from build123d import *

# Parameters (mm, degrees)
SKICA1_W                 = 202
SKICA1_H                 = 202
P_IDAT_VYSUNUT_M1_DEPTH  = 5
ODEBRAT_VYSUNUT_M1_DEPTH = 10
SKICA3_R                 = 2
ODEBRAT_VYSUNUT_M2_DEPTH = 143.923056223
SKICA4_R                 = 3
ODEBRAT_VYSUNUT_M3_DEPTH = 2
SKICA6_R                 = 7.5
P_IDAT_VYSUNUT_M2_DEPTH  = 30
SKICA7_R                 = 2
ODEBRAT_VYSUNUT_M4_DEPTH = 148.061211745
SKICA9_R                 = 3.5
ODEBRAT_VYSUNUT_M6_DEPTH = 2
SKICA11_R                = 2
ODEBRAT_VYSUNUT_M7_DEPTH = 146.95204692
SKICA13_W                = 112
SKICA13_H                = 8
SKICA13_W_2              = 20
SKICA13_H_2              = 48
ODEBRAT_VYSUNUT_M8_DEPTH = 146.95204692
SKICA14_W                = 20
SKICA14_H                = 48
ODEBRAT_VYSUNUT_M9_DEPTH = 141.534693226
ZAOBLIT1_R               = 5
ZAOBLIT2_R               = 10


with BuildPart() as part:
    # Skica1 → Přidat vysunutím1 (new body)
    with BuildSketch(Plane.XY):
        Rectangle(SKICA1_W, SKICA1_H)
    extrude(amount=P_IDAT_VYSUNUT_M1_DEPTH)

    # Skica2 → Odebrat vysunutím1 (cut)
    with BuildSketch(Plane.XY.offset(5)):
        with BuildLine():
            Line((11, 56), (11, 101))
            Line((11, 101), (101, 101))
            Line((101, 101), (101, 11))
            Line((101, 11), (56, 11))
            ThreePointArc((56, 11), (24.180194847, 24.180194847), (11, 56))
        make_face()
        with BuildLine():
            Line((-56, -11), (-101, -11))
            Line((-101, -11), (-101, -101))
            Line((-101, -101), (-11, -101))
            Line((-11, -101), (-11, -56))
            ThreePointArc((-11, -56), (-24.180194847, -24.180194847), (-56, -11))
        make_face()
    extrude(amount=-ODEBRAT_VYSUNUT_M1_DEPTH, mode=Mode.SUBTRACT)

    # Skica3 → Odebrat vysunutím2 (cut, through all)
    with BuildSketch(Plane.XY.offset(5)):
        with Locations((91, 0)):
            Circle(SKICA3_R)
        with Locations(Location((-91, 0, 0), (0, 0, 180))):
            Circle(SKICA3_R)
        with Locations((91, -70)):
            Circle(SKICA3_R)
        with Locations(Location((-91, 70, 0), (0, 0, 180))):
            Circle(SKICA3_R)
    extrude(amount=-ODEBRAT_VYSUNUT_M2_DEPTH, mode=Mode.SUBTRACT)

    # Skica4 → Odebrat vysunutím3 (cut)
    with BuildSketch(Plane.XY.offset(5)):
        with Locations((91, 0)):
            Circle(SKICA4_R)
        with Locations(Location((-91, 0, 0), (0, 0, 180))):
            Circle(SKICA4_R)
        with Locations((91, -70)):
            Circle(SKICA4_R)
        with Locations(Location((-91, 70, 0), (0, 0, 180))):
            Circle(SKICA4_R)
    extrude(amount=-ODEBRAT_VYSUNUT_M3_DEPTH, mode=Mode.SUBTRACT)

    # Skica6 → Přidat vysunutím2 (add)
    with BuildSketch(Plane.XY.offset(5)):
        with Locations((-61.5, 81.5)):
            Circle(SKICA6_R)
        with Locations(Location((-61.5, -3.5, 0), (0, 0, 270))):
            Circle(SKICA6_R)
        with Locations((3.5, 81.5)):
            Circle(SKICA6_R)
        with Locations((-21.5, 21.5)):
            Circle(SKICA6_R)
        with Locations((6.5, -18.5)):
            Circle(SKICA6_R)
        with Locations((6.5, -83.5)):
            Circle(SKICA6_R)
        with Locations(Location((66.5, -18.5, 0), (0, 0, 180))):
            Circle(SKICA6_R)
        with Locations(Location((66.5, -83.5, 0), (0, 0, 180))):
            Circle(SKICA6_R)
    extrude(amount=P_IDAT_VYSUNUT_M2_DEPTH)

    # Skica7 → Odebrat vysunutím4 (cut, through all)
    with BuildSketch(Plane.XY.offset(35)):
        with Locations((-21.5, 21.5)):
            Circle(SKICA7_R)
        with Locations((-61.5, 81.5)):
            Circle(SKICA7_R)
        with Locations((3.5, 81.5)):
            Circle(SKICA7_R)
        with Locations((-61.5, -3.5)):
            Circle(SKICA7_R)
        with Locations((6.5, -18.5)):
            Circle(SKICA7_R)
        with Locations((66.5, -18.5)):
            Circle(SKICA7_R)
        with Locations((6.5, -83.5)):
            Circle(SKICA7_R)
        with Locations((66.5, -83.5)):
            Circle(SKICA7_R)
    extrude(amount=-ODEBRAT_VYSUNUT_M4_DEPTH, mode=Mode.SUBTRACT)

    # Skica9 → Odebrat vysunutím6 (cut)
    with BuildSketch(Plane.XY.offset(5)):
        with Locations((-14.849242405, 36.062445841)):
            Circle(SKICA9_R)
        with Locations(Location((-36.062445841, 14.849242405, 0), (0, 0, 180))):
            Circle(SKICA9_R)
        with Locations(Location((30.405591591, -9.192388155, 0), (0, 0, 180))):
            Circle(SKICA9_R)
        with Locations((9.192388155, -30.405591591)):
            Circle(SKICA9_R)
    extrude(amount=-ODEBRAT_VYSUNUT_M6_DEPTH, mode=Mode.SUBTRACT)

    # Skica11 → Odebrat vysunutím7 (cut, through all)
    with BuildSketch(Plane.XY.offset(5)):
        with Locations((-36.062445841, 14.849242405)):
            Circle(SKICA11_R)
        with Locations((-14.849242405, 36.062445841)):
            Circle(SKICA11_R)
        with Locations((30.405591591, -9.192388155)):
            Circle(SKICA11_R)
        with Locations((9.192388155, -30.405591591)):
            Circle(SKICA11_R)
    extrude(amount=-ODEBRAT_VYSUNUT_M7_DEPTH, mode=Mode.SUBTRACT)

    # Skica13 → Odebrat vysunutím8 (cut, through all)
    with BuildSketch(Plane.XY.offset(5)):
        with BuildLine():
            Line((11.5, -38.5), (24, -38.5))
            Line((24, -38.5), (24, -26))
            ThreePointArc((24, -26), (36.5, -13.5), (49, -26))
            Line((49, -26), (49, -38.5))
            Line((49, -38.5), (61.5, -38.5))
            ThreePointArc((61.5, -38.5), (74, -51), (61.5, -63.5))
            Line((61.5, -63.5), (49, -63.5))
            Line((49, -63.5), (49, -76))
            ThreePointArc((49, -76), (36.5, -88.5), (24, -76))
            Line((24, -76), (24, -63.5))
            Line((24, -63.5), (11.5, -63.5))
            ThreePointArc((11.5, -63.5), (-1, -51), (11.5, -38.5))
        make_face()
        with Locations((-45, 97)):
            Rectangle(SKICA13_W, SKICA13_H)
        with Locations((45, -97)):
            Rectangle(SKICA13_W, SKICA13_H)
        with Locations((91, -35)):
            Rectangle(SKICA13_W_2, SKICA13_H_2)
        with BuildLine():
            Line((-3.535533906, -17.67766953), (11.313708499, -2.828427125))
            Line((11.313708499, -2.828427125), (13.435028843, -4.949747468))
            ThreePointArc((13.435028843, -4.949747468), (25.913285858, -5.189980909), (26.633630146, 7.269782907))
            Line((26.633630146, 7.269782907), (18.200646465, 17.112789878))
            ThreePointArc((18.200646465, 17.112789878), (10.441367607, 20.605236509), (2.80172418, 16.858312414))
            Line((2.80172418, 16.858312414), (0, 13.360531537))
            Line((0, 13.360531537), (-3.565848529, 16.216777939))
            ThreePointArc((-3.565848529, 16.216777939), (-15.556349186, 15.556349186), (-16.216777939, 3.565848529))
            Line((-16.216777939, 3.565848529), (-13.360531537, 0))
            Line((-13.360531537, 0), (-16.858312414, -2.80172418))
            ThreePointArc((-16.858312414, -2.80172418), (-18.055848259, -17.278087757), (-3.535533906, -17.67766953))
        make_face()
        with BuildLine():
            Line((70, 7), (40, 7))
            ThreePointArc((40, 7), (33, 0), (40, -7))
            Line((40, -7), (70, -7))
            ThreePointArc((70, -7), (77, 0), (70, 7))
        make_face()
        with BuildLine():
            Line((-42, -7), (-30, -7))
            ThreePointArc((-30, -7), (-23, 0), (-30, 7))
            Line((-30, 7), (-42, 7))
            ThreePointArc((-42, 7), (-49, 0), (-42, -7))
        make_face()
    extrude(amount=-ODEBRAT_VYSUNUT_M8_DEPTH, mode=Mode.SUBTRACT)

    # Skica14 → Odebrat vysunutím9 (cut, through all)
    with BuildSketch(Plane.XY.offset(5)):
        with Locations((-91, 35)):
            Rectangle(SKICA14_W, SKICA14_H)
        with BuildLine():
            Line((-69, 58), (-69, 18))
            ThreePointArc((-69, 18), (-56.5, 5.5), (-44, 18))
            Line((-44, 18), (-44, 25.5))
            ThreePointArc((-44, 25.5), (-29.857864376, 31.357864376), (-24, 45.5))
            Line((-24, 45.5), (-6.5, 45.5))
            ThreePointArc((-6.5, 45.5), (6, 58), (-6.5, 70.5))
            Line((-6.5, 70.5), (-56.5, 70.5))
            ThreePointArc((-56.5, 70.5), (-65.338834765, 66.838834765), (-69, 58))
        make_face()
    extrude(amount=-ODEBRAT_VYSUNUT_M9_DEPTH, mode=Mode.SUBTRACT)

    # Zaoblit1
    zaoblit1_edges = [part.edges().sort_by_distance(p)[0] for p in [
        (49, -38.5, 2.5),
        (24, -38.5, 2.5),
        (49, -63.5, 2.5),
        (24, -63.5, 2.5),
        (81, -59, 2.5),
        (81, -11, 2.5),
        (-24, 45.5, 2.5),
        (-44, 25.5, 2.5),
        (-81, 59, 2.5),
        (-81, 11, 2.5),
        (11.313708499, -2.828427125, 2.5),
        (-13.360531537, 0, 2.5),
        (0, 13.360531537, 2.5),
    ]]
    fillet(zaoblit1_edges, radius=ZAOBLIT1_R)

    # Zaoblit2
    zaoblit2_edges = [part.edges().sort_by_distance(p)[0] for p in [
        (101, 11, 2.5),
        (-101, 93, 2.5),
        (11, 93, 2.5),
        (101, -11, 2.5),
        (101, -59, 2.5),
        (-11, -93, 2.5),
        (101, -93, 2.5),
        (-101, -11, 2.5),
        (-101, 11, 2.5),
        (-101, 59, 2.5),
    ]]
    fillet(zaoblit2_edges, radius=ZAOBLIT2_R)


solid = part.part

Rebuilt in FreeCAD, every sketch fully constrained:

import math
import FreeCAD as App
import Part
import Sketcher
Q = App.Units.Quantity


def edges_at(feature, points):
    """Names of the edges that pass closest to the given points."""
    edges = feature.Shape.Edges
    near = lambda p: min(range(len(edges)), key=lambda i: edges[i].distToShape(Part.Vertex(*p))[0])
    return sorted({f"Edge{near(p) + 1}" for p in points})

doc = App.newDocument("Part")
params = doc.addObject("Spreadsheet::Sheet", "Params")
for row, (alias, value) in enumerate([
    ("sketch1_width", "202 mm"),
    ("pad1_length", "5 mm"),
    ("sketch2_radius", "45 mm"),
    ("sketch2_width", "45 mm"),
    ("pocket1_length", "10 mm"),
    ("sketch3_diameter", "4 mm"),
    ("sketch4_diameter", "6 mm"),
    ("pocket3_length", "2 mm"),
    ("sketch5_diameter", "15 mm"),
    ("pad2_length", "30 mm"),
    ("sketch6_diameter", "4 mm"),
    ("sketch7_diameter", "7 mm"),
    ("pocket5_length", "2 mm"),
    ("sketch8_diameter", "4 mm"),
    ("sketch9_radius", "9 mm"),
    ("sketch9_radius2", "10 mm"),
    ("sketch9_radius3", "7 mm"),
    ("sketch9_radius4", "12.5 mm"),
    ("sketch9_width", "112 mm"),
    ("sketch10_radius", "20 mm"),
    ("sketch10_radius2", "12.5 mm"),
    ("sketch10_width", "20 mm"),
    ("sketch10_width2", "50 mm"),
    ("sketch10_height", "48 mm"),
    ("fillet_radius", "5 mm"),
    ("fillet2_radius", "10 mm"),
], start=1):
    params.set(f"A{row}", alias)
    params.set(f"B{row}", "=" + value)
    params.setAlias(f"B{row}", alias)

body = doc.addObject("PartDesign::Body", "Body")

sketch1 = body.newObject("Sketcher::SketchObject", "Sketch")
sketch1.AttachmentSupport = (doc.getObject("XY_Plane"), [""])
sketch1.MapMode = "FlatFace"
sketch1.addGeometry(Part.LineSegment(App.Vector(-101, 101, 0), App.Vector(-101, -101, 0)), False)
sketch1.addGeometry(Part.LineSegment(App.Vector(-101, -101, 0), App.Vector(101, -101, 0)), False)
sketch1.addGeometry(Part.LineSegment(App.Vector(101, -101, 0), App.Vector(101, 101, 0)), False)
sketch1.addGeometry(Part.LineSegment(App.Vector(101, 101, 0), App.Vector(-101, 101, 0)), False)
sketch1.addConstraint(Sketcher.Constraint("Coincident", 0, 2, 1, 1))
sketch1.addConstraint(Sketcher.Constraint("Coincident", 1, 2, 2, 1))
sketch1.addConstraint(Sketcher.Constraint("Coincident", 2, 2, 3, 1))
sketch1.addConstraint(Sketcher.Constraint("Coincident", 3, 2, 0, 1))
sketch1.addConstraint(Sketcher.Constraint("Vertical", 0))
sketch1.addConstraint(Sketcher.Constraint("Horizontal", 1))
sketch1.addConstraint(Sketcher.Constraint("Vertical", 2))
sketch1.addConstraint(Sketcher.Constraint("Horizontal", 3))
sketch1.addConstraint(Sketcher.Constraint("Symmetric", 0, 2, 2, 2, -1, 1))
sketch1.addConstraint(Sketcher.Constraint("Equal", 3, 0))
sketch1.addConstraint(Sketcher.Constraint("DistanceX", 1, 1, 1, 2, Q("202 mm")))
sketch1.setExpression("Constraints[10]", "Params.sketch1_width")
pad1 = body.newObject("PartDesign::Pad", "Pad")
pad1.Profile = sketch1
pad1.setExpression("Length", "Params.pad1_length")

sketch2 = body.newObject("Sketcher::SketchObject", "Sketch001")
sketch2.AttachmentSupport = (doc.getObject("XY_Plane"), [""])
sketch2.MapMode = "FlatFace"
sketch2.AttachmentOffset = App.Placement(App.Vector(0, 0, 5), App.Rotation())
sketch2.addGeometry(Part.LineSegment(App.Vector(11, 101, 0), App.Vector(11, 56, 0)), False)
sketch2.addGeometry(Part.ArcOfCircle(Part.Circle(App.Vector(56, 56, 0), App.Vector(0, 0, 1), 45), math.radians(-180), math.radians(-90)), False)
sketch2.addGeometry(Part.LineSegment(App.Vector(56, 11, 0), App.Vector(101, 11, 0)), False)
sketch2.addGeometry(Part.LineSegment(App.Vector(101, 11, 0), App.Vector(101, 101, 0)), False)
sketch2.addGeometry(Part.LineSegment(App.Vector(101, 101, 0), App.Vector(11, 101, 0)), False)
sketch2.addGeometry(Part.LineSegment(App.Vector(-56, -11, 0), App.Vector(-101, -11, 0)), False)
sketch2.addGeometry(Part.LineSegment(App.Vector(-101, -11, 0), App.Vector(-101, -101, 0)), False)
sketch2.addGeometry(Part.LineSegment(App.Vector(-101, -101, 0), App.Vector(-11, -101, 0)), False)
sketch2.addGeometry(Part.LineSegment(App.Vector(-11, -101, 0), App.Vector(-11, -56, 0)), False)
sketch2.addGeometry(Part.ArcOfCircle(Part.Circle(App.Vector(-56, -56, 0), App.Vector(0, 0, 1), 45), math.radians(0), math.radians(90)), False)
sketch2.addConstraint(Sketcher.Constraint("Tangent", 0, 2, 1, 1))
sketch2.addConstraint(Sketcher.Constraint("Tangent", 1, 2, 2, 1))
sketch2.addConstraint(Sketcher.Constraint("Coincident", 2, 2, 3, 1))
sketch2.addConstraint(Sketcher.Constraint("Coincident", 3, 2, 4, 1))
sketch2.addConstraint(Sketcher.Constraint("Coincident", 4, 2, 0, 1))
sketch2.addConstraint(Sketcher.Constraint("Coincident", 5, 2, 6, 1))
sketch2.addConstraint(Sketcher.Constraint("Coincident", 6, 2, 7, 1))
sketch2.addConstraint(Sketcher.Constraint("Coincident", 7, 2, 8, 1))
sketch2.addConstraint(Sketcher.Constraint("Tangent", 8, 2, 9, 1))
sketch2.addConstraint(Sketcher.Constraint("Tangent", 9, 2, 5, 1))
sketch2.addConstraint(Sketcher.Constraint("Vertical", 0))
sketch2.addConstraint(Sketcher.Constraint("Horizontal", 2))
sketch2.addConstraint(Sketcher.Constraint("Vertical", 3))
sketch2.addConstraint(Sketcher.Constraint("Horizontal", 4))
sketch2.addConstraint(Sketcher.Constraint("Horizontal", 5))
sketch2.addConstraint(Sketcher.Constraint("Vertical", 6))
sketch2.addConstraint(Sketcher.Constraint("Horizontal", 7))
sketch2.addConstraint(Sketcher.Constraint("Vertical", 8))
sketch2.addConstraint(Sketcher.Constraint("Equal", 1, 9))
sketch2.addConstraint(Sketcher.Constraint("Symmetric", 1, 3, 9, 3, -1, 1))
sketch2.addConstraint(Sketcher.Constraint("Symmetric", 3, 2, 6, 2, -1, 1))
sketch2.addConstraint(Sketcher.Constraint("Equal", 5, 0))
sketch2.addConstraint(Sketcher.Constraint("Radius", 1, Q("45 mm")))
sketch2.addConstraint(Sketcher.Constraint("DistanceX", 2, 1, 2, 2, Q("45 mm")))
sketch2.addConstraint(Sketcher.Constraint("DistanceX", -1, 1, 1, 3, Q("56 mm")))
sketch2.addConstraint(Sketcher.Constraint("DistanceY", -1, 1, 1, 3, Q("56 mm")))
sketch2.setExpression("Constraints[22]", "Params.sketch2_radius")
sketch2.setExpression("Constraints[23]", "Params.sketch2_width")
pocket1 = body.newObject("PartDesign::Pocket", "Pocket")
pocket1.Profile = sketch2
pocket1.setExpression("Length", "Params.pocket1_length")

sketch3 = body.newObject("Sketcher::SketchObject", "Sketch002")
sketch3.AttachmentSupport = (doc.getObject("XY_Plane"), [""])
sketch3.MapMode = "FlatFace"
sketch3.AttachmentOffset = App.Placement(App.Vector(0, 0, 5), App.Rotation())
sketch3.addGeometry(Part.Circle(App.Vector(91, 0, 0), App.Vector(0, 0, 1), 2), False)
sketch3.addGeometry(Part.Circle(App.Vector(-91, 0, 0), App.Vector(0, 0, 1), 2), False)
sketch3.addGeometry(Part.Circle(App.Vector(91, -70, 0), App.Vector(0, 0, 1), 2), False)
sketch3.addGeometry(Part.Circle(App.Vector(-91, 70, 0), App.Vector(0, 0, 1), 2), False)
sketch3.addConstraint(Sketcher.Constraint("Equal", 0, 1))
sketch3.addConstraint(Sketcher.Constraint("Equal", 1, 2))
sketch3.addConstraint(Sketcher.Constraint("Equal", 2, 3))
sketch3.addConstraint(Sketcher.Constraint("Symmetric", 0, 3, 1, 3, -1, 1))
sketch3.addConstraint(Sketcher.Constraint("Symmetric", 2, 3, 3, 3, -1, 1))
sketch3.addConstraint(Sketcher.Constraint("PointOnObject", 0, 3, -1))
sketch3.addConstraint(Sketcher.Constraint("Vertical", 0, 3, 2, 3))
sketch3.addConstraint(Sketcher.Constraint("Diameter", 0, Q("4 mm")))
sketch3.addConstraint(Sketcher.Constraint("DistanceX", -1, 1, 0, 3, Q("91 mm")))
sketch3.addConstraint(Sketcher.Constraint("DistanceY", 2, 3, -1, 1, Q("70 mm")))
sketch3.setExpression("Constraints[7]", "Params.sketch3_diameter")
pocket2 = body.newObject("PartDesign::Pocket", "Pocket001")
pocket2.Profile = sketch3
pocket2.Type = "ThroughAll"

sketch4 = body.newObject("Sketcher::SketchObject", "Sketch003")
sketch4.AttachmentSupport = (doc.getObject("XY_Plane"), [""])
sketch4.MapMode = "FlatFace"
sketch4.AttachmentOffset = App.Placement(App.Vector(0, 0, 5), App.Rotation())
sketch4.addGeometry(Part.Circle(App.Vector(91, 0, 0), App.Vector(0, 0, 1), 3), False)
sketch4.addGeometry(Part.Circle(App.Vector(-91, 0, 0), App.Vector(0, 0, 1), 3), False)
sketch4.addGeometry(Part.Circle(App.Vector(91, -70, 0), App.Vector(0, 0, 1), 3), False)
sketch4.addGeometry(Part.Circle(App.Vector(-91, 70, 0), App.Vector(0, 0, 1), 3), False)
sketch4.addConstraint(Sketcher.Constraint("Equal", 0, 1))
sketch4.addConstraint(Sketcher.Constraint("Equal", 1, 2))
sketch4.addConstraint(Sketcher.Constraint("Equal", 2, 3))
sketch4.addConstraint(Sketcher.Constraint("Symmetric", 0, 3, 1, 3, -1, 1))
sketch4.addConstraint(Sketcher.Constraint("Symmetric", 2, 3, 3, 3, -1, 1))
sketch4.addConstraint(Sketcher.Constraint("PointOnObject", 0, 3, -1))
sketch4.addConstraint(Sketcher.Constraint("Vertical", 0, 3, 2, 3))
sketch4.addConstraint(Sketcher.Constraint("Diameter", 0, Q("6 mm")))
sketch4.addConstraint(Sketcher.Constraint("DistanceX", -1, 1, 0, 3, Q("91 mm")))
sketch4.addConstraint(Sketcher.Constraint("DistanceY", 2, 3, -1, 1, Q("70 mm")))
sketch4.setExpression("Constraints[7]", "Params.sketch4_diameter")
pocket3 = body.newObject("PartDesign::Pocket", "Pocket002")
pocket3.Profile = sketch4
pocket3.setExpression("Length", "Params.pocket3_length")

sketch5 = body.newObject("Sketcher::SketchObject", "Sketch004")
sketch5.AttachmentSupport = (doc.getObject("XY_Plane"), [""])
sketch5.MapMode = "FlatFace"
sketch5.AttachmentOffset = App.Placement(App.Vector(0, 0, 5), App.Rotation())
sketch5.addGeometry(Part.Circle(App.Vector(-62, 82, 0), App.Vector(0, 0, 1), 8), False)
sketch5.addGeometry(Part.Circle(App.Vector(-62, -4, 0), App.Vector(0, 0, 1), 8), False)
sketch5.addGeometry(Part.Circle(App.Vector(4, 82, 0), App.Vector(0, 0, 1), 8), False)
sketch5.addGeometry(Part.Circle(App.Vector(-22, 22, 0), App.Vector(0, 0, 1), 8), False)
sketch5.addGeometry(Part.Circle(App.Vector(6, -18, 0), App.Vector(0, 0, 1), 8), False)
sketch5.addGeometry(Part.Circle(App.Vector(6, -84, 0), App.Vector(0, 0, 1), 8), False)
sketch5.addGeometry(Part.Circle(App.Vector(66, -18, 0), App.Vector(0, 0, 1), 8), False)
sketch5.addGeometry(Part.Circle(App.Vector(66, -84, 0), App.Vector(0, 0, 1), 8), False)
sketch5.addConstraint(Sketcher.Constraint("Equal", 0, 1))
sketch5.addConstraint(Sketcher.Constraint("Equal", 1, 2))
sketch5.addConstraint(Sketcher.Constraint("Equal", 2, 3))
sketch5.addConstraint(Sketcher.Constraint("Equal", 3, 4))
sketch5.addConstraint(Sketcher.Constraint("Equal", 4, 5))
sketch5.addConstraint(Sketcher.Constraint("Equal", 5, 6))
sketch5.addConstraint(Sketcher.Constraint("Equal", 6, 7))
sketch5.addConstraint(Sketcher.Constraint("Horizontal", 0, 3, 2, 3))
sketch5.addConstraint(Sketcher.Constraint("Horizontal", 4, 3, 6, 3))
sketch5.addConstraint(Sketcher.Constraint("Horizontal", 5, 3, 7, 3))
sketch5.addConstraint(Sketcher.Constraint("Vertical", 0, 3, 1, 3))
sketch5.addConstraint(Sketcher.Constraint("Vertical", 4, 3, 5, 3))
sketch5.addConstraint(Sketcher.Constraint("Vertical", 6, 3, 7, 3))
sketch5.addConstraint(Sketcher.Constraint("Diameter", 0, Q("15 mm")))
sketch5.addConstraint(Sketcher.Constraint("DistanceY", 1, 3, 0, 3, Q("85 mm")))
sketch5.addConstraint(Sketcher.Constraint("DistanceX", 0, 3, 2, 3, Q("65 mm")))
sketch5.addConstraint(Sketcher.Constraint("DistanceX", 1, 3, 3, 3, Q("40 mm")))
sketch5.addConstraint(Sketcher.Constraint("DistanceY", 1, 3, 3, 3, Q("25 mm")))
sketch5.addConstraint(Sketcher.Constraint("DistanceX", 3, 3, 4, 3, Q("28 mm")))
sketch5.addConstraint(Sketcher.Constraint("DistanceY", 4, 3, 3, 3, Q("40 mm")))
sketch5.addConstraint(Sketcher.Constraint("DistanceY", 5, 3, 4, 3, Q("65 mm")))
sketch5.addConstraint(Sketcher.Constraint("DistanceX", 4, 3, 6, 3, Q("60 mm")))
sketch5.addConstraint(Sketcher.Constraint("DistanceX", 0, 3, -1, 1, Q("61.5 mm")))
sketch5.addConstraint(Sketcher.Constraint("DistanceY", -1, 1, 0, 3, Q("81.5 mm")))
sketch5.setExpression("Constraints[13]", "Params.sketch5_diameter")
pad2 = body.newObject("PartDesign::Pad", "Pad001")
pad2.Profile = sketch5
pad2.setExpression("Length", "Params.pad2_length")

sketch6 = body.newObject("Sketcher::SketchObject", "Sketch005")
sketch6.AttachmentSupport = (doc.getObject("XY_Plane"), [""])
sketch6.MapMode = "FlatFace"
sketch6.AttachmentOffset = App.Placement(App.Vector(0, 0, 35), App.Rotation())
sketch6.addGeometry(Part.Circle(App.Vector(-21.5, 21.5, 0), App.Vector(0, 0, 1), 2), False)
sketch6.addGeometry(Part.Circle(App.Vector(-61.5, 81.5, 0), App.Vector(0, 0, 1), 2), False)
sketch6.addGeometry(Part.Circle(App.Vector(3.5, 81.5, 0), App.Vector(0, 0, 1), 2), False)
sketch6.addGeometry(Part.Circle(App.Vector(-61.5, -3.5, 0), App.Vector(0, 0, 1), 2), False)
sketch6.addGeometry(Part.Circle(App.Vector(6.5, -18.5, 0), App.Vector(0, 0, 1), 2), False)
sketch6.addGeometry(Part.Circle(App.Vector(66.5, -18.5, 0), App.Vector(0, 0, 1), 2), False)
sketch6.addGeometry(Part.Circle(App.Vector(6.5, -83.5, 0), App.Vector(0, 0, 1), 2), False)
sketch6.addGeometry(Part.Circle(App.Vector(66.5, -83.5, 0), App.Vector(0, 0, 1), 2), False)
sketch6.addConstraint(Sketcher.Constraint("Equal", 0, 1))
sketch6.addConstraint(Sketcher.Constraint("Equal", 1, 2))
sketch6.addConstraint(Sketcher.Constraint("Equal", 2, 3))
sketch6.addConstraint(Sketcher.Constraint("Equal", 3, 4))
sketch6.addConstraint(Sketcher.Constraint("Equal", 4, 5))
sketch6.addConstraint(Sketcher.Constraint("Equal", 5, 6))
sketch6.addConstraint(Sketcher.Constraint("Equal", 6, 7))
sketch6.addConstraint(Sketcher.Constraint("Horizontal", 1, 3, 2, 3))
sketch6.addConstraint(Sketcher.Constraint("Horizontal", 4, 3, 5, 3))
sketch6.addConstraint(Sketcher.Constraint("Horizontal", 6, 3, 7, 3))
sketch6.addConstraint(Sketcher.Constraint("Vertical", 1, 3, 3, 3))
sketch6.addConstraint(Sketcher.Constraint("Vertical", 4, 3, 6, 3))
sketch6.addConstraint(Sketcher.Constraint("Vertical", 5, 3, 7, 3))
sketch6.addConstraint(Sketcher.Constraint("Diameter", 0, Q("4 mm")))
sketch6.addConstraint(Sketcher.Constraint("DistanceX", 1, 3, 0, 3, Q("40 mm")))
sketch6.addConstraint(Sketcher.Constraint("DistanceY", 0, 3, 1, 3, Q("60 mm")))
sketch6.addConstraint(Sketcher.Constraint("DistanceX", 0, 3, 2, 3, Q("25 mm")))
sketch6.addConstraint(Sketcher.Constraint("DistanceY", 3, 3, 0, 3, Q("25 mm")))
sketch6.addConstraint(Sketcher.Constraint("DistanceX", 0, 3, 4, 3, Q("28 mm")))
sketch6.addConstraint(Sketcher.Constraint("DistanceY", 4, 3, 0, 3, Q("40 mm")))
sketch6.addConstraint(Sketcher.Constraint("DistanceX", 4, 3, 5, 3, Q("60 mm")))
sketch6.addConstraint(Sketcher.Constraint("DistanceY", 6, 3, 4, 3, Q("65 mm")))
sketch6.addConstraint(Sketcher.Constraint("DistanceX", 0, 3, -1, 1, Q("21.5 mm")))
sketch6.addConstraint(Sketcher.Constraint("DistanceY", -1, 1, 0, 3, Q("21.5 mm")))
sketch6.setExpression("Constraints[13]", "Params.sketch6_diameter")
pocket4 = body.newObject("PartDesign::Pocket", "Pocket003")
pocket4.Profile = sketch6
pocket4.Type = "ThroughAll"

sketch7 = body.newObject("Sketcher::SketchObject", "Sketch006")
sketch7.AttachmentSupport = (doc.getObject("XY_Plane"), [""])
sketch7.MapMode = "FlatFace"
sketch7.AttachmentOffset = App.Placement(App.Vector(0, 0, 5), App.Rotation())
sketch7.addGeometry(Part.Circle(App.Vector(-14.8, 36.1, 0), App.Vector(0, 0, 1), 3.5), False)
sketch7.addGeometry(Part.Circle(App.Vector(-36.1, 14.8, 0), App.Vector(0, 0, 1), 3.5), False)
sketch7.addGeometry(Part.Circle(App.Vector(30.4, -9.2, 0), App.Vector(0, 0, 1), 3.5), False)
sketch7.addGeometry(Part.Circle(App.Vector(9.2, -30.4, 0), App.Vector(0, 0, 1), 3.5), False)
sketch7.addConstraint(Sketcher.Constraint("Equal", 0, 1))
sketch7.addConstraint(Sketcher.Constraint("Equal", 1, 2))
sketch7.addConstraint(Sketcher.Constraint("Equal", 2, 3))
sketch7.addConstraint(Sketcher.Constraint("Diameter", 0, Q("7 mm")))
sketch7.addConstraint(Sketcher.Constraint("DistanceX", -1, 1, 2, 3, Q("30.405592 mm")))
sketch7.addConstraint(Sketcher.Constraint("DistanceY", 2, 3, -1, 1, Q("9.192388 mm")))
sketch7.addConstraint(Sketcher.Constraint("DistanceX", -1, 1, 3, 3, Q("9.192388 mm")))
sketch7.addConstraint(Sketcher.Constraint("DistanceY", 3, 3, -1, 1, Q("30.405592 mm")))
sketch7.addConstraint(Sketcher.Constraint("DistanceY", 2, 3, 1, 3, Q("24.041631 mm")))
sketch7.addConstraint(Sketcher.Constraint("DistanceX", 0, 3, 3, 3, Q("24.041631 mm")))
sketch7.addConstraint(Sketcher.Constraint("DistanceY", -1, 1, 0, 3, Q("36.062446 mm")))
sketch7.addConstraint(Sketcher.Constraint("DistanceX", 1, 3, -1, 1, Q("36.062446 mm")))
sketch7.setExpression("Constraints[3]", "Params.sketch7_diameter")
pocket5 = body.newObject("PartDesign::Pocket", "Pocket004")
pocket5.Profile = sketch7
pocket5.setExpression("Length", "Params.pocket5_length")

sketch8 = body.newObject("Sketcher::SketchObject", "Sketch007")
sketch8.AttachmentSupport = (doc.getObject("XY_Plane"), [""])
sketch8.MapMode = "FlatFace"
sketch8.AttachmentOffset = App.Placement(App.Vector(0, 0, 5), App.Rotation())
sketch8.addGeometry(Part.Circle(App.Vector(-36.1, 14.8, 0), App.Vector(0, 0, 1), 2), False)
sketch8.addGeometry(Part.Circle(App.Vector(-14.8, 36.1, 0), App.Vector(0, 0, 1), 2), False)
sketch8.addGeometry(Part.Circle(App.Vector(30.4, -9.2, 0), App.Vector(0, 0, 1), 2), False)
sketch8.addGeometry(Part.Circle(App.Vector(9.2, -30.4, 0), App.Vector(0, 0, 1), 2), False)
sketch8.addConstraint(Sketcher.Constraint("Equal", 0, 1))
sketch8.addConstraint(Sketcher.Constraint("Equal", 1, 2))
sketch8.addConstraint(Sketcher.Constraint("Equal", 2, 3))
sketch8.addConstraint(Sketcher.Constraint("Diameter", 0, Q("4 mm")))
sketch8.addConstraint(Sketcher.Constraint("DistanceX", -1, 1, 2, 3, Q("30.405592 mm")))
sketch8.addConstraint(Sketcher.Constraint("DistanceY", 2, 3, -1, 1, Q("9.192388 mm")))
sketch8.addConstraint(Sketcher.Constraint("DistanceX", -1, 1, 3, 3, Q("9.192388 mm")))
sketch8.addConstraint(Sketcher.Constraint("DistanceY", 3, 3, -1, 1, Q("30.405592 mm")))
sketch8.addConstraint(Sketcher.Constraint("DistanceY", 2, 3, 0, 3, Q("24.041631 mm")))
sketch8.addConstraint(Sketcher.Constraint("DistanceX", 1, 3, 3, 3, Q("24.041631 mm")))
sketch8.addConstraint(Sketcher.Constraint("DistanceX", 0, 3, -1, 1, Q("36.062446 mm")))
sketch8.addConstraint(Sketcher.Constraint("DistanceY", -1, 1, 1, 3, Q("36.062446 mm")))
sketch8.setExpression("Constraints[3]", "Params.sketch8_diameter")
pocket6 = body.newObject("PartDesign::Pocket", "Pocket005")
pocket6.Profile = sketch8
pocket6.Type = "ThroughAll"

sketch9 = body.newObject("Sketcher::SketchObject", "Sketch008")
sketch9.AttachmentSupport = (doc.getObject("XY_Plane"), [""])
sketch9.MapMode = "FlatFace"
sketch9.AttachmentOffset = App.Placement(App.Vector(0, 0, 5), App.Rotation())
sketch9.addGeometry(Part.LineSegment(App.Vector(24, -38.5, 0), App.Vector(11.5, -38.5, 0)), False)
sketch9.addGeometry(Part.ArcOfCircle(Part.Circle(App.Vector(11.5, -51, 0), App.Vector(0, 0, 1), 12.5), math.radians(90), math.radians(270)), False)
sketch9.addGeometry(Part.LineSegment(App.Vector(11.5, -63.5, 0), App.Vector(24, -63.5, 0)), False)
sketch9.addGeometry(Part.LineSegment(App.Vector(24, -63.5, 0), App.Vector(24, -76, 0)), False)
sketch9.addGeometry(Part.ArcOfCircle(Part.Circle(App.Vector(36.5, -76, 0), App.Vector(0, 0, 1), 12.5), math.radians(180), math.radians(360)), False)
sketch9.addGeometry(Part.LineSegment(App.Vector(49, -76, 0), App.Vector(49, -63.5, 0)), False)
sketch9.addGeometry(Part.LineSegment(App.Vector(49, -63.5, 0), App.Vector(61.5, -63.5, 0)), False)
sketch9.addGeometry(Part.ArcOfCircle(Part.Circle(App.Vector(61.5, -51, 0), App.Vector(0, 0, 1), 12.5), math.radians(-90), math.radians(90)), False)
sketch9.addGeometry(Part.LineSegment(App.Vector(61.5, -38.5, 0), App.Vector(49, -38.5, 0)), False)
sketch9.addGeometry(Part.LineSegment(App.Vector(49, -38.5, 0), App.Vector(49, -26, 0)), False)
sketch9.addGeometry(Part.ArcOfCircle(Part.Circle(App.Vector(36.5, -26, 0), App.Vector(0, 0, 1), 12.5), math.radians(0), math.radians(180)), False)
sketch9.addGeometry(Part.LineSegment(App.Vector(24, -26, 0), App.Vector(24, -38.5, 0)), False)
sketch9.addGeometry(Part.LineSegment(App.Vector(-101, 101, 0), App.Vector(-101, 93, 0)), False)
sketch9.addGeometry(Part.LineSegment(App.Vector(-101, 93, 0), App.Vector(11, 93, 0)), False)
sketch9.addGeometry(Part.LineSegment(App.Vector(11, 93, 0), App.Vector(11, 101, 0)), False)
sketch9.addGeometry(Part.LineSegment(App.Vector(11, 101, 0), App.Vector(-101, 101, 0)), False)
sketch9.addGeometry(Part.LineSegment(App.Vector(-11, -93, 0), App.Vector(-11, -101, 0)), False)
sketch9.addGeometry(Part.LineSegment(App.Vector(-11, -101, 0), App.Vector(101, -101, 0)), False)
sketch9.addGeometry(Part.LineSegment(App.Vector(101, -101, 0), App.Vector(101, -93, 0)), False)
sketch9.addGeometry(Part.LineSegment(App.Vector(101, -93, 0), App.Vector(-11, -93, 0)), False)
sketch9.addGeometry(Part.LineSegment(App.Vector(81, -11, 0), App.Vector(81, -59, 0)), False)
sketch9.addGeometry(Part.LineSegment(App.Vector(81, -59, 0), App.Vector(101, -59, 0)), False)
sketch9.addGeometry(Part.LineSegment(App.Vector(101, -59, 0), App.Vector(101, -11, 0)), False)
sketch9.addGeometry(Part.LineSegment(App.Vector(101, -11, 0), App.Vector(81, -11, 0)), False)
sketch9.addGeometry(Part.LineSegment(App.Vector(-3.5, -17.7, 0), App.Vector(11.3, -2.8, 0)), False)
sketch9.addGeometry(Part.LineSegment(App.Vector(11.3, -2.8, 0), App.Vector(13.4, -4.9, 0)), False)
sketch9.addGeometry(Part.ArcOfCircle(Part.Circle(App.Vector(19.8, 1.4, 0), App.Vector(0, 0, 1), 9), math.radians(-135), math.radians(41)), False)
sketch9.addGeometry(Part.LineSegment(App.Vector(26.6, 7.3, 0), App.Vector(18.2, 17.1, 0)), False)
sketch9.addGeometry(Part.ArcOfCircle(Part.Circle(App.Vector(10.6, 10.6, 0), App.Vector(0, 0, 1), 10), math.radians(41), math.radians(141)), False)
sketch9.addGeometry(Part.LineSegment(App.Vector(2.8, 16.9, 0), App.Vector(0, 13.4, 0)), False)
sketch9.addGeometry(Part.LineSegment(App.Vector(0, 13.4, 0), App.Vector(-3.6, 16.2, 0)), False)
sketch9.addGeometry(Part.ArcOfCircle(Part.Circle(App.Vector(-9.2, 9.2, 0), App.Vector(0, 0, 1), 9), math.radians(51), math.radians(219)), False)
sketch9.addGeometry(Part.LineSegment(App.Vector(-16.2, 3.6, 0), App.Vector(-13.4, 0, 0)), False)
sketch9.addGeometry(Part.LineSegment(App.Vector(-13.4, 0, 0), App.Vector(-16.9, -2.8, 0)), False)
sketch9.addGeometry(Part.ArcOfCircle(Part.Circle(App.Vector(-10.6, -10.6, 0), App.Vector(0, 0, 1), 10), math.radians(129), math.radians(315)), False)
sketch9.addGeometry(Part.LineSegment(App.Vector(70, 7, 0), App.Vector(40, 7, 0)), False)
sketch9.addGeometry(Part.ArcOfCircle(Part.Circle(App.Vector(40, 0, 0), App.Vector(0, 0, 1), 7), math.radians(90), math.radians(270)), False)
sketch9.addGeometry(Part.LineSegment(App.Vector(40, -7, 0), App.Vector(70, -7, 0)), False)
sketch9.addGeometry(Part.ArcOfCircle(Part.Circle(App.Vector(70, 0, 0), App.Vector(0, 0, 1), 7), math.radians(-90), math.radians(90)), False)
sketch9.addGeometry(Part.LineSegment(App.Vector(-42, -7, 0), App.Vector(-30, -7, 0)), False)
sketch9.addGeometry(Part.ArcOfCircle(Part.Circle(App.Vector(-30, 0, 0), App.Vector(0, 0, 1), 7), math.radians(-90), math.radians(90)), False)
sketch9.addGeometry(Part.LineSegment(App.Vector(-30, 7, 0), App.Vector(-42, 7, 0)), False)
sketch9.addGeometry(Part.ArcOfCircle(Part.Circle(App.Vector(-42, 0, 0), App.Vector(0, 0, 1), 7), math.radians(90), math.radians(270)), False)
sketch9.addConstraint(Sketcher.Constraint("Tangent", 0, 2, 1, 1))
sketch9.addConstraint(Sketcher.Constraint("Tangent", 1, 2, 2, 1))
sketch9.addConstraint(Sketcher.Constraint("Coincident", 2, 2, 3, 1))
sketch9.addConstraint(Sketcher.Constraint("Tangent", 3, 2, 4, 1))
sketch9.addConstraint(Sketcher.Constraint("Tangent", 4, 2, 5, 1))
sketch9.addConstraint(Sketcher.Constraint("Coincident", 5, 2, 6, 1))
sketch9.addConstraint(Sketcher.Constraint("Tangent", 6, 2, 7, 1))
sketch9.addConstraint(Sketcher.Constraint("Tangent", 7, 2, 8, 1))
sketch9.addConstraint(Sketcher.Constraint("Coincident", 8, 2, 9, 1))
sketch9.addConstraint(Sketcher.Constraint("Tangent", 9, 2, 10, 1))
sketch9.addConstraint(Sketcher.Constraint("Tangent", 10, 2, 11, 1))
sketch9.addConstraint(Sketcher.Constraint("Coincident", 11, 2, 0, 1))
sketch9.addConstraint(Sketcher.Constraint("Coincident", 12, 2, 13, 1))
sketch9.addConstraint(Sketcher.Constraint("Coincident", 13, 2, 14, 1))
sketch9.addConstraint(Sketcher.Constraint("Coincident", 14, 2, 15, 1))
sketch9.addConstraint(Sketcher.Constraint("Coincident", 15, 2, 12, 1))
sketch9.addConstraint(Sketcher.Constraint("Coincident", 16, 2, 17, 1))
sketch9.addConstraint(Sketcher.Constraint("Coincident", 17, 2, 18, 1))
sketch9.addConstraint(Sketcher.Constraint("Coincident", 18, 2, 19, 1))
sketch9.addConstraint(Sketcher.Constraint("Coincident", 19, 2, 16, 1))
sketch9.addConstraint(Sketcher.Constraint("Coincident", 20, 2, 21, 1))
sketch9.addConstraint(Sketcher.Constraint("Coincident", 21, 2, 22, 1))
sketch9.addConstraint(Sketcher.Constraint("Coincident", 22, 2, 23, 1))
sketch9.addConstraint(Sketcher.Constraint("Coincident", 23, 2, 20, 1))
sketch9.addConstraint(Sketcher.Constraint("Coincident", 24, 2, 25, 1))
sketch9.addConstraint(Sketcher.Constraint("Tangent", 25, 2, 26, 1))
sketch9.addConstraint(Sketcher.Constraint("Tangent", 26, 2, 27, 1))
sketch9.addConstraint(Sketcher.Constraint("Tangent", 27, 2, 28, 1))
sketch9.addConstraint(Sketcher.Constraint("Tangent", 28, 2, 29, 1))
sketch9.addConstraint(Sketcher.Constraint("Coincident", 29, 2, 30, 1))
sketch9.addConstraint(Sketcher.Constraint("Tangent", 30, 2, 31, 1))
sketch9.addConstraint(Sketcher.Constraint("Tangent", 31, 2, 32, 1))
sketch9.addConstraint(Sketcher.Constraint("Coincident", 32, 2, 33, 1))
sketch9.addConstraint(Sketcher.Constraint("Tangent", 33, 2, 34, 1))
sketch9.addConstraint(Sketcher.Constraint("Tangent", 34, 2, 24, 1))
sketch9.addConstraint(Sketcher.Constraint("Tangent", 35, 2, 36, 1))
sketch9.addConstraint(Sketcher.Constraint("Tangent", 36, 2, 37, 1))
sketch9.addConstraint(Sketcher.Constraint("Tangent", 37, 2, 38, 1))
sketch9.addConstraint(Sketcher.Constraint("Tangent", 38, 2, 35, 1))
sketch9.addConstraint(Sketcher.Constraint("Tangent", 39, 2, 40, 1))
sketch9.addConstraint(Sketcher.Constraint("Tangent", 40, 2, 41, 1))
sketch9.addConstraint(Sketcher.Constraint("Tangent", 41, 2, 42, 1))
sketch9.addConstraint(Sketcher.Constraint("Tangent", 42, 2, 39, 1))
sketch9.addConstraint(Sketcher.Constraint("Horizontal", 0))
sketch9.addConstraint(Sketcher.Constraint("Horizontal", 2))
sketch9.addConstraint(Sketcher.Constraint("Vertical", 3))
sketch9.addConstraint(Sketcher.Constraint("Vertical", 5))
sketch9.addConstraint(Sketcher.Constraint("Horizontal", 6))
sketch9.addConstraint(Sketcher.Constraint("Horizontal", 8))
sketch9.addConstraint(Sketcher.Constraint("Vertical", 9))
sketch9.addConstraint(Sketcher.Constraint("Vertical", 11))
sketch9.addConstraint(Sketcher.Constraint("Vertical", 12))
sketch9.addConstraint(Sketcher.Constraint("Horizontal", 13))
sketch9.addConstraint(Sketcher.Constraint("Vertical", 14))
sketch9.addConstraint(Sketcher.Constraint("Horizontal", 15))
sketch9.addConstraint(Sketcher.Constraint("Vertical", 16))
sketch9.addConstraint(Sketcher.Constraint("Horizontal", 17))
sketch9.addConstraint(Sketcher.Constraint("Vertical", 18))
sketch9.addConstraint(Sketcher.Constraint("Horizontal", 19))
sketch9.addConstraint(Sketcher.Constraint("Vertical", 20))
sketch9.addConstraint(Sketcher.Constraint("Horizontal", 21))
sketch9.addConstraint(Sketcher.Constraint("Vertical", 22))
sketch9.addConstraint(Sketcher.Constraint("Horizontal", 23))
sketch9.addConstraint(Sketcher.Constraint("Horizontal", 35))
sketch9.addConstraint(Sketcher.Constraint("Horizontal", 37))
sketch9.addConstraint(Sketcher.Constraint("Horizontal", 39))
sketch9.addConstraint(Sketcher.Constraint("Horizontal", 41))
sketch9.addConstraint(Sketcher.Constraint("Equal", 1, 4))
sketch9.addConstraint(Sketcher.Constraint("Equal", 4, 7))
sketch9.addConstraint(Sketcher.Constraint("Equal", 7, 10))
sketch9.addConstraint(Sketcher.Constraint("Equal", 26, 31))
sketch9.addConstraint(Sketcher.Constraint("Equal", 28, 34))
sketch9.addConstraint(Sketcher.Constraint("Equal", 38, 40))
sketch9.addConstraint(Sketcher.Constraint("Symmetric", 28, 3, 34, 3, -1, 1))
sketch9.addConstraint(Sketcher.Constraint("Symmetric", 14, 2, 16, 2, -1, 1))
sketch9.addConstraint(Sketcher.Constraint("Symmetric", 12, 2, 18, 2, -1, 1))
sketch9.addConstraint(Sketcher.Constraint("PointOnObject", 36, 3, -1))
sketch9.addConstraint(Sketcher.Constraint("PointOnObject", 40, 3, -1))
sketch9.addConstraint(Sketcher.Constraint("PointOnObject", 29, 2, -2))
sketch9.addConstraint(Sketcher.Constraint("PointOnObject", 32, 2, -1))
sketch9.addConstraint(Sketcher.Constraint("Perpendicular", 24, 25))
sketch9.addConstraint(Sketcher.Constraint("Perpendicular", 29, 30))
sketch9.addConstraint(Sketcher.Constraint("Perpendicular", 32, 33))
sketch9.addConstraint(Sketcher.Constraint("Horizontal", 1, 3, 7, 3))
sketch9.addConstraint(Sketcher.Constraint("Vertical", 4, 3, 10, 3))
sketch9.addConstraint(Sketcher.Constraint("Vertical", 18, 2, 21, 2))
sketch9.addConstraint(Sketcher.Constraint("Equal", 2, 6))
sketch9.addConstraint(Sketcher.Constraint("Equal", 8, 3))
sketch9.addConstraint(Sketcher.Constraint("Equal", 5, 9))
sketch9.addConstraint(Sketcher.Constraint("Equal", 30, 32))
sketch9.addConstraint(Sketcher.Constraint("Equal", 29, 33))
sketch9.addConstraint(Sketcher.Constraint("Radius", 26, Q("9 mm")))
sketch9.addConstraint(Sketcher.Constraint("Radius", 28, Q("10 mm")))
sketch9.addConstraint(Sketcher.Constraint("Radius", 36, Q("7 mm")))
sketch9.addConstraint(Sketcher.Constraint("Radius", 1, Q("12.5 mm")))
sketch9.addConstraint(Sketcher.Constraint("DistanceX", 13, 1, 13, 2, Q("112 mm")))
sketch9.addConstraint(Sketcher.Constraint("DistanceX", 21, 1, 21, 2, Q("20 mm")))
sketch9.addConstraint(Sketcher.Constraint("DistanceX", 35, 2, 35, 1, Q("30 mm")))
sketch9.addConstraint(Sketcher.Constraint("DistanceX", 39, 1, 39, 2, Q("12 mm")))
sketch9.addConstraint(Sketcher.Constraint("DistanceY", 12, 2, 12, 1, Q("8 mm")))
sketch9.addConstraint(Sketcher.Constraint("DistanceY", 20, 2, 20, 1, Q("48 mm")))
sketch9.addConstraint(Sketcher.Constraint("Angle", 24, Q("45 deg")))
sketch9.addConstraint(Sketcher.Constraint("Distance", 24, Q("21 mm")))
sketch9.addConstraint(Sketcher.Constraint("Distance", 25, Q("3 mm")))
sketch9.addConstraint(Sketcher.Constraint("DistanceX", 0, 2, 0, 1, Q("12.5 mm")))
sketch9.addConstraint(Sketcher.Constraint("DistanceY", 1, 3, -1, 1, Q("51 mm")))
sketch9.addConstraint(Sketcher.Constraint("DistanceX", -1, 1, 36, 3, Q("40 mm")))
sketch9.addConstraint(Sketcher.Constraint("DistanceX", 40, 3, -1, 1, Q("30 mm")))
sketch9.addConstraint(Sketcher.Constraint("DistanceX", -1, 1, 2, 2, Q("24 mm")))
sketch9.addConstraint(Sketcher.Constraint("DistanceX", 12, 2, -1, 1, Q("101 mm")))
sketch9.addConstraint(Sketcher.Constraint("DistanceY", -1, 1, 12, 2, Q("93 mm")))
sketch9.addConstraint(Sketcher.Constraint("DistanceY", 20, 2, -1, 1, Q("59 mm")))
sketch9.addConstraint(Sketcher.Constraint("DistanceX", -1, 1, 28, 3, Q("10.606602 mm")))
sketch9.addConstraint(Sketcher.Constraint("DistanceY", 26, 3, 28, 2, Q("15.444099 mm")))
sketch9.setExpression("Constraints[91]", "Params.sketch9_radius")
sketch9.setExpression("Constraints[92]", "Params.sketch9_radius2")
sketch9.setExpression("Constraints[93]", "Params.sketch9_radius3")
sketch9.setExpression("Constraints[94]", "Params.sketch9_radius4")
sketch9.setExpression("Constraints[95]", "Params.sketch9_width")
pocket7 = body.newObject("PartDesign::Pocket", "Pocket006")
pocket7.Profile = sketch9
pocket7.Type = "ThroughAll"

sketch10 = body.newObject("Sketcher::SketchObject", "Sketch009")
sketch10.AttachmentSupport = (doc.getObject("XY_Plane"), [""])
sketch10.MapMode = "FlatFace"
sketch10.AttachmentOffset = App.Placement(App.Vector(0, 0, 5), App.Rotation())
sketch10.addGeometry(Part.LineSegment(App.Vector(-101, 59, 0), App.Vector(-101, 11, 0)), False)
sketch10.addGeometry(Part.LineSegment(App.Vector(-101, 11, 0), App.Vector(-81, 11, 0)), False)
sketch10.addGeometry(Part.LineSegment(App.Vector(-81, 11, 0), App.Vector(-81, 59, 0)), False)
sketch10.addGeometry(Part.LineSegment(App.Vector(-81, 59, 0), App.Vector(-101, 59, 0)), False)
sketch10.addGeometry(Part.LineSegment(App.Vector(-69, 58, 0), App.Vector(-69, 18, 0)), False)
sketch10.addGeometry(Part.ArcOfCircle(Part.Circle(App.Vector(-56, 18, 0), App.Vector(0, 0, 1), 12), math.radians(180), math.radians(360)), False)
sketch10.addGeometry(Part.LineSegment(App.Vector(-44, 18, 0), App.Vector(-44, 26, 0)), False)
sketch10.addGeometry(Part.ArcOfCircle(Part.Circle(App.Vector(-44, 45, 0), App.Vector(0, 0, 1), 20), math.radians(-90), math.radians(0)), False)
sketch10.addGeometry(Part.LineSegment(App.Vector(-24, 46, 0), App.Vector(-6, 46, 0)), False)
sketch10.addGeometry(Part.ArcOfCircle(Part.Circle(App.Vector(-6, 58, 0), App.Vector(0, 0, 1), 12), math.radians(-90), math.radians(90)), False)
sketch10.addGeometry(Part.LineSegment(App.Vector(-6, 70, 0), App.Vector(-56, 70, 0)), False)
sketch10.addGeometry(Part.ArcOfCircle(Part.Circle(App.Vector(-57, 58, 0), App.Vector(0, 0, 1), 12), math.radians(90), math.radians(180)), False)
sketch10.addConstraint(Sketcher.Constraint("Coincident", 0, 2, 1, 1))
sketch10.addConstraint(Sketcher.Constraint("Coincident", 1, 2, 2, 1))
sketch10.addConstraint(Sketcher.Constraint("Coincident", 2, 2, 3, 1))
sketch10.addConstraint(Sketcher.Constraint("Coincident", 3, 2, 0, 1))
sketch10.addConstraint(Sketcher.Constraint("Tangent", 4, 2, 5, 1))
sketch10.addConstraint(Sketcher.Constraint("Tangent", 5, 2, 6, 1))
sketch10.addConstraint(Sketcher.Constraint("Coincident", 6, 2, 7, 1))
sketch10.addConstraint(Sketcher.Constraint("Coincident", 7, 2, 8, 1))
sketch10.addConstraint(Sketcher.Constraint("Tangent", 8, 2, 9, 1))
sketch10.addConstraint(Sketcher.Constraint("Tangent", 9, 2, 10, 1))
sketch10.addConstraint(Sketcher.Constraint("Tangent", 10, 2, 11, 1))
sketch10.addConstraint(Sketcher.Constraint("Tangent", 11, 2, 4, 1))
sketch10.addConstraint(Sketcher.Constraint("Vertical", 0))
sketch10.addConstraint(Sketcher.Constraint("Horizontal", 1))
sketch10.addConstraint(Sketcher.Constraint("Vertical", 2))
sketch10.addConstraint(Sketcher.Constraint("Horizontal", 3))
sketch10.addConstraint(Sketcher.Constraint("Vertical", 4))
sketch10.addConstraint(Sketcher.Constraint("Vertical", 6))
sketch10.addConstraint(Sketcher.Constraint("Horizontal", 8))
sketch10.addConstraint(Sketcher.Constraint("Horizontal", 10))
sketch10.addConstraint(Sketcher.Constraint("Equal", 5, 9))
sketch10.addConstraint(Sketcher.Constraint("Equal", 9, 11))
sketch10.addConstraint(Sketcher.Constraint("Vertical", 7, 3, 5, 2))
sketch10.addConstraint(Sketcher.Constraint("Radius", 7, Q("20 mm")))
sketch10.addConstraint(Sketcher.Constraint("Radius", 5, Q("12.5 mm")))
sketch10.addConstraint(Sketcher.Constraint("DistanceX", 1, 1, 1, 2, Q("20 mm")))
sketch10.addConstraint(Sketcher.Constraint("DistanceX", 10, 2, 10, 1, Q("50 mm")))
sketch10.addConstraint(Sketcher.Constraint("DistanceY", 0, 2, 0, 1, Q("48 mm")))
sketch10.addConstraint(Sketcher.Constraint("DistanceY", 4, 2, 4, 1, Q("40 mm")))
sketch10.addConstraint(Sketcher.Constraint("DistanceY", 6, 1, 6, 2, Q("7.5 mm")))
sketch10.addConstraint(Sketcher.Constraint("DistanceY", -1, 1, 5, 3, Q("18 mm")))
sketch10.addConstraint(Sketcher.Constraint("DistanceX", 7, 3, -1, 1, Q("44 mm")))
sketch10.addConstraint(Sketcher.Constraint("DistanceX", 0, 2, -1, 1, Q("101 mm")))
sketch10.addConstraint(Sketcher.Constraint("DistanceY", -1, 1, 0, 2, Q("11 mm")))
sketch10.setExpression("Constraints[23]", "Params.sketch10_radius")
sketch10.setExpression("Constraints[24]", "Params.sketch10_radius2")
sketch10.setExpression("Constraints[25]", "Params.sketch10_width")
sketch10.setExpression("Constraints[26]", "Params.sketch10_width2")
sketch10.setExpression("Constraints[27]", "Params.sketch10_height")
pocket8 = body.newObject("PartDesign::Pocket", "Pocket007")
pocket8.Profile = sketch10
pocket8.Type = "ThroughAll"
doc.recompute()

fillet = body.newObject("PartDesign::Fillet", "Fillet")
fillet.Base = (pocket8, edges_at(pocket8, [
    (49, -38.5, 2.5),
    (24, -38.5, 2.5),
    (49, -63.5, 2.5),
    (24, -63.5, 2.5),
    (81, -59, 2.5),
    (81, -11, 2.5),
    (-24, 45.5, 2.5),
    (-44, 25.5, 2.5),
    (-81, 59, 2.5),
    (-81, 11, 2.5),
    (11.314, -2.828, 2.5),
    (-13.361, 0, 2.5),
    (0, 13.361, 2.5),
]))
fillet.setExpression("Radius", "Params.fillet_radius")
doc.recompute()

fillet2 = body.newObject("PartDesign::Fillet", "Fillet001")
fillet2.Base = (fillet, edges_at(fillet, [
    (101, 11, 2.5),
    (-101, 93, 2.5),
    (11, 93, 2.5),
    (101, -11, 2.5),
    (101, -59, 2.5),
    (-11, -93, 2.5),
    (101, -93, 2.5),
    (-101, -11, 2.5),
    (-101, 11, 2.5),
    (-101, 59, 2.5),
]))
fillet2.setExpression("Radius", "Params.fillet2_radius")

doc.recompute()
